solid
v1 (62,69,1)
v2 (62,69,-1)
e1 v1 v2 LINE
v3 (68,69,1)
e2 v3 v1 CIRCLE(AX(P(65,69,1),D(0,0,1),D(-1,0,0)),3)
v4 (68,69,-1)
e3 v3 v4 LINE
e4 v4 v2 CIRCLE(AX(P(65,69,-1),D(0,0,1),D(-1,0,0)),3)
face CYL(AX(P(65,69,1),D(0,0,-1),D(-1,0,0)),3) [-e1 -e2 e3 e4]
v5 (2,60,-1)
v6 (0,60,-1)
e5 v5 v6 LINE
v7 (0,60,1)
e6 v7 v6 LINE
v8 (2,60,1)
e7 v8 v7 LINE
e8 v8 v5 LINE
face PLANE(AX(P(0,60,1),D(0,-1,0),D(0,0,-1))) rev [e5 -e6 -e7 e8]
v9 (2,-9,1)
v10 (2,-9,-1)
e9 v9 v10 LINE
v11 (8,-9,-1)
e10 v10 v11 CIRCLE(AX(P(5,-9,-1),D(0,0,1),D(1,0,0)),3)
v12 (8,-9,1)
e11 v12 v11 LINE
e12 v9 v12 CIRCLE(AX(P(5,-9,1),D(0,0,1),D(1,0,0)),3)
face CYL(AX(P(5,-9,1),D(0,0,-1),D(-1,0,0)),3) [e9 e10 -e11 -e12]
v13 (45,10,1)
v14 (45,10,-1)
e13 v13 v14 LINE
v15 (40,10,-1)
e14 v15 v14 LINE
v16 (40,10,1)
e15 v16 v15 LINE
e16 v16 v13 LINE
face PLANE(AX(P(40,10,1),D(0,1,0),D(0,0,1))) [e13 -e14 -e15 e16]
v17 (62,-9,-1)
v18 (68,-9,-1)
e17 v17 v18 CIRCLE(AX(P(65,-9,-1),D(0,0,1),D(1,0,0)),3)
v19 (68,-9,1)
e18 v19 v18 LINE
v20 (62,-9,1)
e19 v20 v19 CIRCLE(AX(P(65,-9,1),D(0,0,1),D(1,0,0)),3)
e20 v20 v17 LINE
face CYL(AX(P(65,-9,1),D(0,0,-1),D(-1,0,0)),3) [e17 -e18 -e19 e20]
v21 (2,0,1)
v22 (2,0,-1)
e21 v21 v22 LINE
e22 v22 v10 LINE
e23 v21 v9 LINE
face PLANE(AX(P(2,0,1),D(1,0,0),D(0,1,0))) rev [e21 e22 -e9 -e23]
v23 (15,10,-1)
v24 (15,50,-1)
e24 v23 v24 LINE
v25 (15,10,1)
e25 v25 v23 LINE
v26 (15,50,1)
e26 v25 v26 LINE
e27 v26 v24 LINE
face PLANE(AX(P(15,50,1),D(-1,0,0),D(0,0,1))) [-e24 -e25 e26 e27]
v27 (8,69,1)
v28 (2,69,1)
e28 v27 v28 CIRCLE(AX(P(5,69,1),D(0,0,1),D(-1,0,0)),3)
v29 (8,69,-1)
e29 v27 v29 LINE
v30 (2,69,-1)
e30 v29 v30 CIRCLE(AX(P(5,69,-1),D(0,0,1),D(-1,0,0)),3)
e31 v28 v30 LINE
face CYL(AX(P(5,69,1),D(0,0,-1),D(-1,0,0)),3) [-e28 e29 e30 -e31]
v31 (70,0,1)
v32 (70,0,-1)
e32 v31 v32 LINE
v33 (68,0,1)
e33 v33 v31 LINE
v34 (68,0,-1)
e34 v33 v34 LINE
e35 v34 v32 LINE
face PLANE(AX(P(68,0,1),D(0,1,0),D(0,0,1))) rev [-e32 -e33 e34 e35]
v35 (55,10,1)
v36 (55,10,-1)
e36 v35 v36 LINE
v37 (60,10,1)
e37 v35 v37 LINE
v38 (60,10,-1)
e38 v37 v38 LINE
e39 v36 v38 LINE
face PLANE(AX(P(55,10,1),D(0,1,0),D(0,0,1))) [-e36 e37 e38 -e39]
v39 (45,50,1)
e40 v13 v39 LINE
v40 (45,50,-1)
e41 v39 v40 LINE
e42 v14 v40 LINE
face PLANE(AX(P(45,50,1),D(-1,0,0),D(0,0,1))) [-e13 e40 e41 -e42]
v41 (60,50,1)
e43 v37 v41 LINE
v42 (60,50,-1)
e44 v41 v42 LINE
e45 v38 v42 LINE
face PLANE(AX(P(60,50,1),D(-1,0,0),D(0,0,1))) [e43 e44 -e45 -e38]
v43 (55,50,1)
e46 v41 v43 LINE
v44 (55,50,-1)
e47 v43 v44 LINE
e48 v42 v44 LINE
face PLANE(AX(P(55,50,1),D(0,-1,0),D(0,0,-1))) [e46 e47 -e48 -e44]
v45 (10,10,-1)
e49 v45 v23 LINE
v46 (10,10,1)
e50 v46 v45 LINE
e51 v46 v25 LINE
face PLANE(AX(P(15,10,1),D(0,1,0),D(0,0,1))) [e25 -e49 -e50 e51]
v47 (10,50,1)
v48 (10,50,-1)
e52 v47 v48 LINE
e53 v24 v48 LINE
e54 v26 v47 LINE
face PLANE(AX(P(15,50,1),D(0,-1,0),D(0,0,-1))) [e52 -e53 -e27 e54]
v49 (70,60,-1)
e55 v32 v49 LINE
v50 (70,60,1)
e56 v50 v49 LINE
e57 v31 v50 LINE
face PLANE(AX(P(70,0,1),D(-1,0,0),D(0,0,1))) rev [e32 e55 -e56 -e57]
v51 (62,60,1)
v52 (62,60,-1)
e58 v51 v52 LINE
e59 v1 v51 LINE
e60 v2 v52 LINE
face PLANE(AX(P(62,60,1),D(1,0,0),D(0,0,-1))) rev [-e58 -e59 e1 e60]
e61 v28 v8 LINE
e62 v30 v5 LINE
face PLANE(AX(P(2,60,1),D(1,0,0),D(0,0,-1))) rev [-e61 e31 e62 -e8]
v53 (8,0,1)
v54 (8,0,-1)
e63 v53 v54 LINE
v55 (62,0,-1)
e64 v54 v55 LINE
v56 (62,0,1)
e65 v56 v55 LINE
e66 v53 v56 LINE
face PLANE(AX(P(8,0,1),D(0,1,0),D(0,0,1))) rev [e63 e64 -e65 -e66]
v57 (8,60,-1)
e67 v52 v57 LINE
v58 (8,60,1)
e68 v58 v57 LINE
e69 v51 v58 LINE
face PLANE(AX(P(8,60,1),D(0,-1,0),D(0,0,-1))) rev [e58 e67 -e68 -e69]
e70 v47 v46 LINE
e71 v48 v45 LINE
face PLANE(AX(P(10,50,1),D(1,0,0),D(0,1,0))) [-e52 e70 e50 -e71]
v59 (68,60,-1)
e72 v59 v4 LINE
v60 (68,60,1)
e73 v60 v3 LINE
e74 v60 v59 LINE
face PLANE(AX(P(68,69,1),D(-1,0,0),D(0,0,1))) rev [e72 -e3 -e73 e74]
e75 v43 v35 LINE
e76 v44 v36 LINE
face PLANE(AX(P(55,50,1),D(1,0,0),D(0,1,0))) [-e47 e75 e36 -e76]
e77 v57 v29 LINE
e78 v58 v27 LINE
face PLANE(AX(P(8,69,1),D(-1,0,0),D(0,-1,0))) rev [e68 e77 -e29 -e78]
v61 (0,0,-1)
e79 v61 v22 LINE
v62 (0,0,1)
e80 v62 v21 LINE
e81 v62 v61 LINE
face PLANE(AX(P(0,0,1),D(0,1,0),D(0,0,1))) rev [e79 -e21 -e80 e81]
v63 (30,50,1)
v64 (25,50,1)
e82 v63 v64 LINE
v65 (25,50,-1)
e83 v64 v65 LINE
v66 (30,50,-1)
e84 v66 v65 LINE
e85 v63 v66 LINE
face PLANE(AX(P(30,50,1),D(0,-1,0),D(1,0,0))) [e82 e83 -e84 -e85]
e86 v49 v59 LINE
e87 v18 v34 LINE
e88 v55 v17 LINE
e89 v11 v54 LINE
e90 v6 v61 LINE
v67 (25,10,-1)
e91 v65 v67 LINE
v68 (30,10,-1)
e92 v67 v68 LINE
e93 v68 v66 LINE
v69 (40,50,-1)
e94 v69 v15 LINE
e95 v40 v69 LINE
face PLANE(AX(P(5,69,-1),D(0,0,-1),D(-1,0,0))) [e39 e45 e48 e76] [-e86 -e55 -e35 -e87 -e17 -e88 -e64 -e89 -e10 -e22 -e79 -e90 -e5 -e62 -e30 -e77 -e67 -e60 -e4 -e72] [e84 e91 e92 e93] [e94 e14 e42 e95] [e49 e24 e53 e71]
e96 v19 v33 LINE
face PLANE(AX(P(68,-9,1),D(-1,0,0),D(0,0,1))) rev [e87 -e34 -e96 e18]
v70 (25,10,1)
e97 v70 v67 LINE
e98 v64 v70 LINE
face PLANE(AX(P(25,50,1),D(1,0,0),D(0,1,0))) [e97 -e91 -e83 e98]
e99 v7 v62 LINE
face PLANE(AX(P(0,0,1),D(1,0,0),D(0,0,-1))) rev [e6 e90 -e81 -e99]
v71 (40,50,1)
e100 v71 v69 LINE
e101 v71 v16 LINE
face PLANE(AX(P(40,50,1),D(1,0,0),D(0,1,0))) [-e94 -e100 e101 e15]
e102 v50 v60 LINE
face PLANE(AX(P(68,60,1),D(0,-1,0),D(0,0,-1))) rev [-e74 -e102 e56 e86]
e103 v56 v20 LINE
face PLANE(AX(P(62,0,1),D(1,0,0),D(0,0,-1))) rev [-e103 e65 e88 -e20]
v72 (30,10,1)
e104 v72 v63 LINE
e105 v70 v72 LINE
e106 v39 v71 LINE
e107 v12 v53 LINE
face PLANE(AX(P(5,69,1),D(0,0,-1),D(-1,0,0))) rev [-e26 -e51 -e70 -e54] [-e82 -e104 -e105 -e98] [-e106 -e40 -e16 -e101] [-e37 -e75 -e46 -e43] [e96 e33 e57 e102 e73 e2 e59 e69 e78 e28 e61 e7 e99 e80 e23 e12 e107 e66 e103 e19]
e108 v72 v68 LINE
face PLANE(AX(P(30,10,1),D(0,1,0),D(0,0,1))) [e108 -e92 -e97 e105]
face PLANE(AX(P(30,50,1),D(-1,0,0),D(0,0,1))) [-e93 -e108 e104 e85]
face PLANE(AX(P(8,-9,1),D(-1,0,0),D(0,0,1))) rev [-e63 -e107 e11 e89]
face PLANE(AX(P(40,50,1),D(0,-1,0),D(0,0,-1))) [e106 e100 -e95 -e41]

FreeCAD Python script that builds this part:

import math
import FreeCAD as App
import Part
import Sketcher

V = App.Vector
Q = App.Units.Quantity

doc = App.newDocument("Part")
body = doc.addObject("PartDesign::Body", "Body")

# Sketch on XY plane
sketch1 = doc.addObject("Sketcher::SketchObject", "Sketch")
body.addObject(sketch1)
sketch1.AttachmentSupport = (doc.XY_Plane, [""])
sketch1.MapMode = "FlatFace"
sketch1.addGeometry(Part.LineSegment(V(2, 0, 0), V(2, -9, 0)), False)
sketch1.addGeometry(Part.ArcOfCircle(Part.Circle(V(5, -9, 0), V(0, 0, 1), 3), math.radians(180), math.radians(360)), False)
sketch1.addGeometry(Part.LineSegment(V(8, -9, 0), V(8, 0, 0)), False)
sketch1.addGeometry(Part.LineSegment(V(8, 0, 0), V(62, 0, 0)), False)
sketch1.addGeometry(Part.LineSegment(V(62, 0, 0), V(62, -9, 0)), False)
sketch1.addGeometry(Part.ArcOfCircle(Part.Circle(V(65, -9, 0), V(0, 0, 1), 3), math.radians(180), math.radians(360)), False)
sketch1.addGeometry(Part.LineSegment(V(68, -9, 0), V(68, 0, 0)), False)
sketch1.addGeometry(Part.LineSegment(V(68, 0, 0), V(70, 0, 0)), False)
sketch1.addGeometry(Part.LineSegment(V(70, 0, 0), V(70, 60, 0)), False)
sketch1.addGeometry(Part.LineSegment(V(70, 60, 0), V(68, 60, 0)), False)
sketch1.addGeometry(Part.LineSegment(V(68, 60, 0), V(68, 69, 0)), False)
sketch1.addGeometry(Part.ArcOfCircle(Part.Circle(V(65, 69, 0), V(0, 0, 1), 3), math.radians(0), math.radians(180)), False)
sketch1.addGeometry(Part.LineSegment(V(62, 69, 0), V(62, 60, 0)), False)
sketch1.addGeometry(Part.LineSegment(V(62, 60, 0), V(8, 60, 0)), False)
sketch1.addGeometry(Part.LineSegment(V(8, 60, 0), V(8, 69, 0)), False)
sketch1.addGeometry(Part.ArcOfCircle(Part.Circle(V(5, 69, 0), V(0, 0, 1), 3), math.radians(0), math.radians(180)), False)
sketch1.addGeometry(Part.LineSegment(V(2, 69, 0), V(2, 60, 0)), False)
sketch1.addGeometry(Part.LineSegment(V(2, 60, 0), V(0, 60, 0)), False)
sketch1.addGeometry(Part.LineSegment(V(0, 60, 0), V(0, 0, 0)), False)
sketch1.addGeometry(Part.LineSegment(V(0, 0, 0), V(2, 0, 0)), False)
sketch1.addGeometry(Part.LineSegment(V(15, 10, 0), V(10, 10, 0)), False)
sketch1.addGeometry(Part.LineSegment(V(10, 10, 0), V(10, 50, 0)), False)
sketch1.addGeometry(Part.LineSegment(V(10, 50, 0), V(15, 50, 0)), False)
sketch1.addGeometry(Part.LineSegment(V(15, 50, 0), V(15, 10, 0)), False)
sketch1.addGeometry(Part.LineSegment(V(30, 10, 0), V(25, 10, 0)), False)
sketch1.addGeometry(Part.LineSegment(V(25, 10, 0), V(25, 50, 0)), False)
sketch1.addGeometry(Part.LineSegment(V(25, 50, 0), V(30, 50, 0)), False)
sketch1.addGeometry(Part.LineSegment(V(30, 50, 0), V(30, 10, 0)), False)
sketch1.addGeometry(Part.LineSegment(V(45, 10, 0), V(40, 10, 0)), False)
sketch1.addGeometry(Part.LineSegment(V(40, 10, 0), V(40, 50, 0)), False)
sketch1.addGeometry(Part.LineSegment(V(40, 50, 0), V(45, 50, 0)), False)
sketch1.addGeometry(Part.LineSegment(V(45, 50, 0), V(45, 10, 0)), False)
sketch1.addGeometry(Part.LineSegment(V(60, 10, 0), V(55, 10, 0)), False)
sketch1.addGeometry(Part.LineSegment(V(55, 10, 0), V(55, 50, 0)), False)
sketch1.addGeometry(Part.LineSegment(V(55, 50, 0), V(60, 50, 0)), False)
sketch1.addGeometry(Part.LineSegment(V(60, 50, 0), V(60, 10, 0)), False)
sketch1.addConstraint(Sketcher.Constraint("Tangent", 0, 2, 1, 1))
sketch1.addConstraint(Sketcher.Constraint("Tangent", 1, 2, 2, 1))
sketch1.addConstraint(Sketcher.Constraint("Coincident", 2, 2, 3, 1))
sketch1.addConstraint(Sketcher.Constraint("Coincident", 3, 2, 4, 1))
sketch1.addConstraint(Sketcher.Constraint("Tangent", 4, 2, 5, 1))
sketch1.addConstraint(Sketcher.Constraint("Tangent", 5, 2, 6, 1))
sketch1.addConstraint(Sketcher.Constraint("Coincident", 6, 2, 7, 1))
sketch1.addConstraint(Sketcher.Constraint("Coincident", 7, 2, 8, 1))
sketch1.addConstraint(Sketcher.Constraint("Coincident", 8, 2, 9, 1))
sketch1.addConstraint(Sketcher.Constraint("Coincident", 9, 2, 10, 1))
sketch1.addConstraint(Sketcher.Constraint("Tangent", 10, 2, 11, 1))
sketch1.addConstraint(Sketcher.Constraint("Tangent", 11, 2, 12, 1))
sketch1.addConstraint(Sketcher.Constraint("Coincident", 12, 2, 13, 1))
sketch1.addConstraint(Sketcher.Constraint("Coincident", 13, 2, 14, 1))
sketch1.addConstraint(Sketcher.Constraint("Tangent", 14, 2, 15, 1))
sketch1.addConstraint(Sketcher.Constraint("Tangent", 15, 2, 16, 1))
sketch1.addConstraint(Sketcher.Constraint("Coincident", 16, 2, 17, 1))
sketch1.addConstraint(Sketcher.Constraint("Coincident", 17, 2, 18, 1))
sketch1.addConstraint(Sketcher.Constraint("Coincident", 18, 2, 19, 1))
sketch1.addConstraint(Sketcher.Constraint("Coincident", 19, 2, 0, 1))
sketch1.addConstraint(Sketcher.Constraint("Coincident", 20, 2, 21, 1))
sketch1.addConstraint(Sketcher.Constraint("Coincident", 21, 2, 22, 1))
sketch1.addConstraint(Sketcher.Constraint("Coincident", 22, 2, 23, 1))
sketch1.addConstraint(Sketcher.Constraint("Coincident", 23, 2, 20, 1))
sketch1.addConstraint(Sketcher.Constraint("Coincident", 24, 2, 25, 1))
sketch1.addConstraint(Sketcher.Constraint("Coincident", 25, 2, 26, 1))
sketch1.addConstraint(Sketcher.Constraint("Coincident", 26, 2, 27, 1))
sketch1.addConstraint(Sketcher.Constraint("Coincident", 27, 2, 24, 1))
sketch1.addConstraint(Sketcher.Constraint("Coincident", 28, 2, 29, 1))
sketch1.addConstraint(Sketcher.Constraint("Coincident", 29, 2, 30, 1))
sketch1.addConstraint(Sketcher.Constraint("Coincident", 30, 2, 31, 1))
sketch1.addConstraint(Sketcher.Constraint("Coincident", 31, 2, 28, 1))
sketch1.addConstraint(Sketcher.Constraint("Coincident", 32, 2, 33, 1))
sketch1.addConstraint(Sketcher.Constraint("Coincident", 33, 2, 34, 1))
sketch1.addConstraint(Sketcher.Constraint("Coincident", 34, 2, 35, 1))
sketch1.addConstraint(Sketcher.Constraint("Coincident", 35, 2, 32, 1))
sketch1.addConstraint(Sketcher.Constraint("Vertical", 0))
sketch1.addConstraint(Sketcher.Constraint("Vertical", 2))
sketch1.addConstraint(Sketcher.Constraint("Horizontal", 3))
sketch1.addConstraint(Sketcher.Constraint("Vertical", 4))
sketch1.addConstraint(Sketcher.Constraint("Vertical", 6))
sketch1.addConstraint(Sketcher.Constraint("Horizontal", 7))
sketch1.addConstraint(Sketcher.Constraint("Vertical", 8))
sketch1.addConstraint(Sketcher.Constraint("Horizontal", 9))
sketch1.addConstraint(Sketcher.Constraint("Vertical", 10))
sketch1.addConstraint(Sketcher.Constraint("Vertical", 12))
sketch1.addConstraint(Sketcher.Constraint("Horizontal", 13))
sketch1.addConstraint(Sketcher.Constraint("Vertical", 14))
sketch1.addConstraint(Sketcher.Constraint("Vertical", 16))
sketch1.addConstraint(Sketcher.Constraint("Horizontal", 17))
sketch1.addConstraint(Sketcher.Constraint("Vertical", 18))
sketch1.addConstraint(Sketcher.Constraint("Horizontal", 19))
sketch1.addConstraint(Sketcher.Constraint("Horizontal", 20))
sketch1.addConstraint(Sketcher.Constraint("Vertical", 21))
sketch1.addConstraint(Sketcher.Constraint("Horizontal", 22))
sketch1.addConstraint(Sketcher.Constraint("Vertical", 23))
sketch1.addConstraint(Sketcher.Constraint("Horizontal", 24))
sketch1.addConstraint(Sketcher.Constraint("Vertical", 25))
sketch1.addConstraint(Sketcher.Constraint("Horizontal", 26))
sketch1.addConstraint(Sketcher.Constraint("Vertical", 27))
sketch1.addConstraint(Sketcher.Constraint("Horizontal", 28))
sketch1.addConstraint(Sketcher.Constraint("Vertical", 29))
sketch1.addConstraint(Sketcher.Constraint("Horizontal", 30))
sketch1.addConstraint(Sketcher.Constraint("Vertical", 31))
sketch1.addConstraint(Sketcher.Constraint("Horizontal", 32))
sketch1.addConstraint(Sketcher.Constraint("Vertical", 33))
sketch1.addConstraint(Sketcher.Constraint("Horizontal", 34))
sketch1.addConstraint(Sketcher.Constraint("Vertical", 35))
sketch1.addConstraint(Sketcher.Constraint("Coincident", 18, 2, -1, 1))
sketch1.addConstraint(Sketcher.Constraint("Equal", 1, 5))
sketch1.addConstraint(Sketcher.Constraint("Equal", 5, 11))
sketch1.addConstraint(Sketcher.Constraint("Equal", 11, 15))
sketch1.addConstraint(Sketcher.Constraint("PointOnObject", 2, 2, -1))
sketch1.addConstraint(Sketcher.Constraint("PointOnObject", 6, 2, -1))
sketch1.addConstraint(Sketcher.Constraint("Horizontal", 1, 3, 5, 3))
sketch1.addConstraint(Sketcher.Constraint("Horizontal", 11, 3, 15, 3))
sketch1.addConstraint(Sketcher.Constraint("Horizontal", 9, 2, 12, 2))
sketch1.addConstraint(Sketcher.Constraint("Horizontal", 13, 2, 16, 2))
sketch1.addConstraint(Sketcher.Constraint("Horizontal", 23, 2, 24, 2))
sketch1.addConstraint(Sketcher.Constraint("Horizontal", 22, 2, 25, 2))
sketch1.addConstraint(Sketcher.Constraint("Horizontal", 27, 2, 28, 2))
sketch1.addConstraint(Sketcher.Constraint("Horizontal", 26, 2, 29, 2))
sketch1.addConstraint(Sketcher.Constraint("Horizontal", 31, 2, 32, 2))
sketch1.addConstraint(Sketcher.Constraint("Horizontal", 30, 2, 33, 2))
sketch1.addConstraint(Sketcher.Constraint("Vertical", 5, 3, 11, 3))
sketch1.addConstraint(Sketcher.Constraint("Vertical", 1, 3, 15, 3))
sketch1.addConstraint(Sketcher.Constraint("Equal", 9, 17))
sketch1.addConstraint(Sketcher.Constraint("Equal", 22, 24))
sketch1.addConstraint(Sketcher.Constraint("Equal", 26, 28))
sketch1.addConstraint(Sketcher.Constraint("Equal", 30, 32))
sketch1.addConstraint(Sketcher.Constraint("Equal", 6, 10))
sketch1.addConstraint(Sketcher.Constraint("Radius", 1, Q("3 mm")))
sketch1.addConstraint(Sketcher.Constraint("DistanceX", 3, 1, 3, 2, Q("54 mm")))
sketch1.addConstraint(Sketcher.Constraint("DistanceX", 7, 1, 7, 2, Q("2 mm")))
sketch1.addConstraint(Sketcher.Constraint("DistanceX", 20, 2, 20, 1, Q("5 mm")))
sketch1.addConstraint(Sketcher.Constraint("DistanceY", 0, 2, 0, 1, Q("9 mm")))
sketch1.addConstraint(Sketcher.Constraint("DistanceY", 8, 1, 8, 2, Q("60 mm")))
sketch1.addConstraint(Sketcher.Constraint("DistanceY", 21, 1, 21, 2, Q("40 mm")))
sketch1.addConstraint(Sketcher.Constraint("DistanceX", -1, 1, 20, 2, Q("10 mm")))
sketch1.addConstraint(Sketcher.Constraint("DistanceY", -1, 1, 20, 2, Q("10 mm")))
sketch1.addConstraint(Sketcher.Constraint("DistanceX", -1, 1, 24, 2, Q("25 mm")))
sketch1.addConstraint(Sketcher.Constraint("DistanceX", -1, 1, 28, 2, Q("40 mm")))
sketch1.addConstraint(Sketcher.Constraint("DistanceX", -1, 1, 32, 2, Q("55 mm")))
pad1 = doc.addObject("PartDesign::Pad", "Pad")
body.addObject(pad1)
pad1.Profile = sketch1
pad1.Length = 2
pad1.Midplane = True

doc.recompute()
